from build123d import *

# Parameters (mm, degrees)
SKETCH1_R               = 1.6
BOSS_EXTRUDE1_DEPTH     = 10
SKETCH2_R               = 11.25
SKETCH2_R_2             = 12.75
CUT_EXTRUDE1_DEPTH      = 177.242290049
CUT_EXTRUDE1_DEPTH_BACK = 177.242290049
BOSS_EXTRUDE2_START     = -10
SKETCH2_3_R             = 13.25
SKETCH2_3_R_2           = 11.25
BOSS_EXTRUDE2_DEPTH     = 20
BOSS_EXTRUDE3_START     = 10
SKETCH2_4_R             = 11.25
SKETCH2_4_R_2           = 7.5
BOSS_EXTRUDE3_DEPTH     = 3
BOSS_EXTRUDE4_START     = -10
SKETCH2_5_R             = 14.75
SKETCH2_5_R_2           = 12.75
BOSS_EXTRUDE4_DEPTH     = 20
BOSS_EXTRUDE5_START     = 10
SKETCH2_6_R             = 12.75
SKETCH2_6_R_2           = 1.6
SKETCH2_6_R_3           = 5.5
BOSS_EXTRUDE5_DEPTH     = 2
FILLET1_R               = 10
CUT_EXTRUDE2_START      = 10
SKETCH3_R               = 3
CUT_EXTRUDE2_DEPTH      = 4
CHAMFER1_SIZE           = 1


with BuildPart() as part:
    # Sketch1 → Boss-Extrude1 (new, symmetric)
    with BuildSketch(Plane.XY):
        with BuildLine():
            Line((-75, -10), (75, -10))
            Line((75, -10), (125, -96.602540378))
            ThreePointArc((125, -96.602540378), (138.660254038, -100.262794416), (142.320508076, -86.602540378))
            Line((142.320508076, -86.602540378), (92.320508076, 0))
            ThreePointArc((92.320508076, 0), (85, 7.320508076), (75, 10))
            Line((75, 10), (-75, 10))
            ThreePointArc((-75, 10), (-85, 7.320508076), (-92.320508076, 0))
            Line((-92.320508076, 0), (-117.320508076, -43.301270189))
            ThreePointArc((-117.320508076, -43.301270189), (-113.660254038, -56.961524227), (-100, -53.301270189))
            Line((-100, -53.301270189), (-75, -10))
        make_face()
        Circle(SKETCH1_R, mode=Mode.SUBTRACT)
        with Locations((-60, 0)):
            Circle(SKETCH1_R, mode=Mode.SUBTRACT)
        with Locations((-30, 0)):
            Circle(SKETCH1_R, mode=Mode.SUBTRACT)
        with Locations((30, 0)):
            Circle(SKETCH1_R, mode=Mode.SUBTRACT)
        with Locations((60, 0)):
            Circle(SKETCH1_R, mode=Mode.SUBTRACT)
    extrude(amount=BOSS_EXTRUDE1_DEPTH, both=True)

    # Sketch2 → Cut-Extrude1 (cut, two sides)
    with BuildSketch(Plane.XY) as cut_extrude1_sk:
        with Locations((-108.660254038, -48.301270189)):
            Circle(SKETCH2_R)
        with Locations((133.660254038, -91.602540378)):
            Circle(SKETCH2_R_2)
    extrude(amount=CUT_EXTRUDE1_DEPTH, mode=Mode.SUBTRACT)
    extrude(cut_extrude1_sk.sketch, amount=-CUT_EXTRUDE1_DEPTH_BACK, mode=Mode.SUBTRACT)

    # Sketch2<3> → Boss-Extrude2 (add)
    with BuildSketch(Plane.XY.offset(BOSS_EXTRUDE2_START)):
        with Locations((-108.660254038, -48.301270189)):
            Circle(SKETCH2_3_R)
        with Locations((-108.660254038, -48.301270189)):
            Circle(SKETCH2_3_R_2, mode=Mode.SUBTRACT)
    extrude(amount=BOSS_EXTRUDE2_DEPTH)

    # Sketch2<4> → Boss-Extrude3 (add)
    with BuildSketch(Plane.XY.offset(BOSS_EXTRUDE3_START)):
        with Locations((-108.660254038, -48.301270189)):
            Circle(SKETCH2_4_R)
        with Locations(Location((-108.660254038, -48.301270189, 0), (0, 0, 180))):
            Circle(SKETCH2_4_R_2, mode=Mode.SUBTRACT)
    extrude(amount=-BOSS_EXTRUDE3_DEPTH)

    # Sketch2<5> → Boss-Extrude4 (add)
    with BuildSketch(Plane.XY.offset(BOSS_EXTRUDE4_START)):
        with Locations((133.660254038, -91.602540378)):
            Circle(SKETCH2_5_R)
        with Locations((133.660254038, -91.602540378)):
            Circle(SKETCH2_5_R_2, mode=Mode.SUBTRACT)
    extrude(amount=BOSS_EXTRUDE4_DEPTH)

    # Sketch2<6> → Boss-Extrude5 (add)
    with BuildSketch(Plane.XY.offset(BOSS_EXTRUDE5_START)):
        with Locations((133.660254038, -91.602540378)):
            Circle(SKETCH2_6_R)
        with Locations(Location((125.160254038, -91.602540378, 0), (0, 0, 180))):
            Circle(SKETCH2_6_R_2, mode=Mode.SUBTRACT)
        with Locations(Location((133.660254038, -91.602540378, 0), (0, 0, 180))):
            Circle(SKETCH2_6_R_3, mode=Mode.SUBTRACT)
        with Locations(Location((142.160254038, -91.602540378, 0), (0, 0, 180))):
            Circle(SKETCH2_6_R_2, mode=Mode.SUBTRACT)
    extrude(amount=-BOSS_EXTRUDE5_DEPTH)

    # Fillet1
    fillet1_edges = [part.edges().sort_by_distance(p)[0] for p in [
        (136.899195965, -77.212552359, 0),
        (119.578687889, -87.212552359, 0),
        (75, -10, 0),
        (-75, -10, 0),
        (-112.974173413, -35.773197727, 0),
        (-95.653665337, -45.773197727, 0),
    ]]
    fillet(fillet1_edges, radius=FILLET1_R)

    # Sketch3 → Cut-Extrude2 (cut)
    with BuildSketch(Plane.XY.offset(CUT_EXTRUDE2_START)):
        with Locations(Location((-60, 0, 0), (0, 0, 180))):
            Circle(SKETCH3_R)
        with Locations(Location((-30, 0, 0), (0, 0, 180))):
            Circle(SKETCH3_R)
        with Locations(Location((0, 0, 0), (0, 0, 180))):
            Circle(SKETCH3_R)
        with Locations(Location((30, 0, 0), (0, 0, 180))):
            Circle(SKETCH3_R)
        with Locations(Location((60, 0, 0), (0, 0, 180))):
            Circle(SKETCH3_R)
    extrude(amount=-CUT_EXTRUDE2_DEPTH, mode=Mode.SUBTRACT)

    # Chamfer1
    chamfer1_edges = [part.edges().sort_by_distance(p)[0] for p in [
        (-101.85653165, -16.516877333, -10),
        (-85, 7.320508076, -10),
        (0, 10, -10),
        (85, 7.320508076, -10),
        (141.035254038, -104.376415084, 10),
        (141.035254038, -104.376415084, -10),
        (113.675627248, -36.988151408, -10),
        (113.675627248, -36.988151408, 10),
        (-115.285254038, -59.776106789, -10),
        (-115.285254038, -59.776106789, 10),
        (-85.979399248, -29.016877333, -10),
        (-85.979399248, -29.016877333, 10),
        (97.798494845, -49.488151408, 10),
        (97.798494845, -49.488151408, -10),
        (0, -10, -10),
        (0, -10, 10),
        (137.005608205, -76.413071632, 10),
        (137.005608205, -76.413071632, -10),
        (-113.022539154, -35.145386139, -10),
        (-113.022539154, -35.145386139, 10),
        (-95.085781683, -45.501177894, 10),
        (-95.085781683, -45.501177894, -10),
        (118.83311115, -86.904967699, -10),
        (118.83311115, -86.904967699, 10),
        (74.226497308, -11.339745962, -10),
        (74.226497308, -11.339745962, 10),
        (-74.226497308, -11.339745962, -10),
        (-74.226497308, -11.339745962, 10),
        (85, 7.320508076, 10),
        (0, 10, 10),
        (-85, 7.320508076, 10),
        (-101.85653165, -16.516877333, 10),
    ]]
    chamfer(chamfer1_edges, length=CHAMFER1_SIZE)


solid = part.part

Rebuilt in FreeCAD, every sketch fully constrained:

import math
import FreeCAD as App
import Part
import Sketcher

V = App.Vector
Q = App.Units.Quantity


def edges_at(feature, points):
    """Names of the edges that pass closest to the given points."""
    edges = feature.Shape.Edges
    near = lambda p: min(range(len(edges)), key=lambda i: edges[i].distToShape(Part.Vertex(*p))[0])
    return sorted({f"Edge{near(p) + 1}" for p in points})

doc = App.newDocument("Part")
params = doc.addObject("Spreadsheet::Sheet", "Params")
for row, (alias, value) in enumerate([
    ("sketch1_radius", "10 mm"),
    ("sketch1_diameter", "3.2 mm"),
    ("sketch1_width", "150 mm"),
    ("sketch1_length", "100 mm"),
    ("sketch1_length2", "50 mm"),
    ("pad1_length", "20 mm"),
    ("sketch2_diameter", "22.5 mm"),
    ("sketch2_diameter2", "25.5 mm"),
    ("sketch3_diameter", "26.5 mm"),
    ("sketch3_diameter2", "22.5 mm"),
    ("pad2_length", "20 mm"),
    ("sketch4_diameter", "15 mm"),
    ("sketch4_diameter2", "22.5 mm"),
    ("pad3_length", "3 mm"),
    ("sketch5_diameter", "29.5 mm"),
    ("sketch5_diameter2", "25.5 mm"),
    ("pad4_length", "20 mm"),
    ("sketch6_diameter", "11 mm"),
    ("sketch6_diameter2", "25.5 mm"),
    ("sketch6_diameter3", "3.2 mm"),
    ("pad5_length", "2 mm"),
    ("fillet_radius", "10 mm"),
    ("sketch7_diameter", "6 mm"),
    ("pocket2_length", "4 mm"),
    ("chamfer_size", "1 mm"),
], start=1):
    params.set(f"A{row}", alias)
    params.set(f"B{row}", "=" + value)
    params.setAlias(f"B{row}", alias)

body = doc.addObject("PartDesign::Body", "Body")

# Sketch on XY plane
sketch1 = doc.addObject("Sketcher::SketchObject", "Sketch")
body.addObject(sketch1)
sketch1.AttachmentSupport = (doc.XY_Plane, [""])
sketch1.MapMode = "FlatFace"
sketch1.addGeometry(Part.LineSegment(V(-75, -10, 0), V(75, -10, 0)), False)
sketch1.addGeometry(Part.LineSegment(V(75, -10, 0), V(125, -96.6, 0)), False)
sketch1.addGeometry(Part.ArcOfCircle(Part.Circle(V(133.7, -91.6, 0), V(0, 0, 1), 10), math.radians(-150), math.radians(30)), False)
sketch1.addGeometry(Part.LineSegment(V(142.3, -86.6, 0), V(92.3, 0, 0)), False)
sketch1.addGeometry(Part.ArcOfCircle(Part.Circle(V(75, -10, 0), V(0, 0, 1), 20), math.radians(30), math.radians(90)), False)
sketch1.addGeometry(Part.LineSegment(V(75, 10, 0), V(-75, 10, 0)), False)
sketch1.addGeometry(Part.ArcOfCircle(Part.Circle(V(-75, -10, 0), V(0, 0, 1), 20), math.radians(90), math.radians(150)), False)
sketch1.addGeometry(Part.LineSegment(V(-92.3, 0, 0), V(-117.3, -43.3, 0)), False)
sketch1.addGeometry(Part.ArcOfCircle(Part.Circle(V(-108.7, -48.3, 0), V(0, 0, 1), 10), math.radians(150), math.radians(330)), False)
sketch1.addGeometry(Part.LineSegment(V(-100, -53.3, 0), V(-75, -10, 0)), False)
sketch1.addGeometry(Part.Circle(V(-60, 0, 0), V(0, 0, 1), 1.6), False)
sketch1.addGeometry(Part.Circle(V(-30, 0, 0), V(0, 0, 1), 1.6), False)
sketch1.addGeometry(Part.Circle(V(0, 0, 0), V(0, 0, 1), 1.6), False)
sketch1.addGeometry(Part.Circle(V(30, 0, 0), V(0, 0, 1), 1.6), False)
sketch1.addGeometry(Part.Circle(V(60, 0, 0), V(0, 0, 1), 1.6), False)
sketch1.addConstraint(Sketcher.Constraint("Coincident", 0, 2, 1, 1))
sketch1.addConstraint(Sketcher.Constraint("Tangent", 1, 2, 2, 1))
sketch1.addConstraint(Sketcher.Constraint("Tangent", 2, 2, 3, 1))
sketch1.addConstraint(Sketcher.Constraint("Tangent", 3, 2, 4, 1))
sketch1.addConstraint(Sketcher.Constraint("Tangent", 4, 2, 5, 1))
sketch1.addConstraint(Sketcher.Constraint("Tangent", 5, 2, 6, 1))
sketch1.addConstraint(Sketcher.Constraint("Tangent", 6, 2, 7, 1))
sketch1.addConstraint(Sketcher.Constraint("Tangent", 7, 2, 8, 1))
sketch1.addConstraint(Sketcher.Constraint("Tangent", 8, 2, 9, 1))
sketch1.addConstraint(Sketcher.Constraint("Coincident", 9, 2, 0, 1))
sketch1.addConstraint(Sketcher.Constraint("Horizontal", 0))
sketch1.addConstraint(Sketcher.Constraint("Horizontal", 5))
sketch1.addConstraint(Sketcher.Constraint("Coincident", 12, 3, -1, 1))
sketch1.addConstraint(Sketcher.Constraint("Coincident", 0, 2, 4, 3))
sketch1.addConstraint(Sketcher.Constraint("Coincident", 9, 2, 6, 3))
sketch1.addConstraint(Sketcher.Constraint("Equal", 2, 8))
sketch1.addConstraint(Sketcher.Constraint("Equal", 10, 11))
sketch1.addConstraint(Sketcher.Constraint("Equal", 11, 12))
sketch1.addConstraint(Sketcher.Constraint("Equal", 12, 13))
sketch1.addConstraint(Sketcher.Constraint("Equal", 13, 14))
sketch1.addConstraint(Sketcher.Constraint("Symmetric", 11, 3, 13, 3, -1, 1))
sketch1.addConstraint(Sketcher.Constraint("Symmetric", 10, 3, 14, 3, -1, 1))
sketch1.addConstraint(Sketcher.Constraint("Symmetric", 0, 2, 5, 2, -1, 1))
sketch1.addConstraint(Sketcher.Constraint("Symmetric", 3, 2, 6, 2, -1, 1))
sketch1.addConstraint(Sketcher.Constraint("PointOnObject", 10, 3, -1))
sketch1.addConstraint(Sketcher.Constraint("PointOnObject", 11, 3, -1))
sketch1.addConstraint(Sketcher.Constraint("Parallel", 1, 3))
sketch1.addConstraint(Sketcher.Constraint("Radius", 2, Q("10 mm")))
sketch1.addConstraint(Sketcher.Constraint("Diameter", 10, Q("3.2 mm")))
sketch1.addConstraint(Sketcher.Constraint("DistanceX", 0, 1, 0, 2, Q("150 mm")))
sketch1.addConstraint(Sketcher.Constraint("Distance", 1, Q("100 mm")))
sketch1.addConstraint(Sketcher.Constraint("Distance", 7, Q("50 mm")))
sketch1.addConstraint(Sketcher.Constraint("DistanceX", 10, 3, -1, 1, Q("60 mm")))
sketch1.addConstraint(Sketcher.Constraint("DistanceX", 11, 3, -1, 1, Q("30 mm")))
sketch1.setExpression("Constraints[27]", "Params.sketch1_radius")
sketch1.setExpression("Constraints[28]", "Params.sketch1_diameter")
sketch1.setExpression("Constraints[29]", "Params.sketch1_width")
sketch1.setExpression("Constraints[30]", "Params.sketch1_length")
sketch1.setExpression("Constraints[31]", "Params.sketch1_length2")
pad1 = doc.addObject("PartDesign::Pad", "Pad")
body.addObject(pad1)
pad1.Profile = sketch1
pad1.setExpression("Length", "Params.pad1_length")
pad1.Midplane = True

# Sketch on XY plane
sketch2 = doc.addObject("Sketcher::SketchObject", "Sketch001")
body.addObject(sketch2)
sketch2.AttachmentSupport = (doc.XY_Plane, [""])
sketch2.MapMode = "FlatFace"
sketch2.addGeometry(Part.Circle(V(-109, -48, 0), V(0, 0, 1), 11), False)
sketch2.addGeometry(Part.Circle(V(134, -92, 0), V(0, 0, 1), 13), False)
sketch2.addConstraint(Sketcher.Constraint("Diameter", 0, Q("22.5 mm")))
sketch2.addConstraint(Sketcher.Constraint("Diameter", 1, Q("25.5 mm")))
sketch2.addConstraint(Sketcher.Constraint("DistanceY", 0, 3, -1, 1, Q("48.30127 mm")))
sketch2.addConstraint(Sketcher.Constraint("DistanceY", 1, 3, -1, 1, Q("91.60254 mm")))
sketch2.addConstraint(Sketcher.Constraint("DistanceX", 0, 3, 1, 3, Q("242.320508 mm")))
sketch2.addConstraint(Sketcher.Constraint("DistanceX", 0, 3, -1, 1, Q("108.660254 mm")))
sketch2.setExpression("Constraints[0]", "Params.sketch2_diameter")
sketch2.setExpression("Constraints[1]", "Params.sketch2_diameter2")
pocket1 = doc.addObject("PartDesign::Pocket", "Pocket")
body.addObject(pocket1)
pocket1.Profile = sketch2
pocket1.Type = "ThroughAll"
pocket1.Midplane = True

# Sketch on XY plane
sketch3 = doc.addObject("Sketcher::SketchObject", "Sketch002")
body.addObject(sketch3)
sketch3.AttachmentSupport = (doc.XY_Plane, [""])
sketch3.MapMode = "FlatFace"
sketch3.AttachmentOffset = App.Placement(V(0, 0, -10), App.Rotation())
sketch3.addGeometry(Part.Circle(V(-109, -48, 0), V(0, 0, 1), 13), False)
sketch3.addGeometry(Part.Circle(V(-109, -48, 0), V(0, 0, 1), 11), False)
sketch3.addConstraint(Sketcher.Constraint("Coincident", 1, 3, 0, 3))
sketch3.addConstraint(Sketcher.Constraint("Diameter", 0, Q("26.5 mm")))
sketch3.addConstraint(Sketcher.Constraint("Diameter", 1, Q("22.5 mm")))
sketch3.addConstraint(Sketcher.Constraint("DistanceY", 0, 3, -1, 1, Q("48.30127 mm")))
sketch3.addConstraint(Sketcher.Constraint("DistanceX", 0, 3, -1, 1, Q("108.660254 mm")))
sketch3.setExpression("Constraints[1]", "Params.sketch3_diameter")
sketch3.setExpression("Constraints[2]", "Params.sketch3_diameter2")
pad2 = doc.addObject("PartDesign::Pad", "Pad001")
body.addObject(pad2)
pad2.Profile = sketch3
pad2.setExpression("Length", "Params.pad2_length")

# Sketch on XY plane
sketch4 = doc.addObject("Sketcher::SketchObject", "Sketch003")
body.addObject(sketch4)
sketch4.AttachmentSupport = (doc.XY_Plane, [""])
sketch4.MapMode = "FlatFace"
sketch4.AttachmentOffset = App.Placement(V(0, 0, 10), App.Rotation())
sketch4.addGeometry(Part.Circle(V(-109, -48, 0), V(0, 0, 1), 11), False)
sketch4.addGeometry(Part.Circle(V(-109, -48, 0), V(0, 0, 1), 8), False)
sketch4.addConstraint(Sketcher.Constraint("Coincident", 1, 3, 0, 3))
sketch4.addConstraint(Sketcher.Constraint("Diameter", 1, Q("15 mm")))
sketch4.addConstraint(Sketcher.Constraint("Diameter", 0, Q("22.5 mm")))
sketch4.addConstraint(Sketcher.Constraint("DistanceY", 0, 3, -1, 1, Q("48.30127 mm")))
sketch4.addConstraint(Sketcher.Constraint("DistanceX", 0, 3, -1, 1, Q("108.660254 mm")))
sketch4.setExpression("Constraints[1]", "Params.sketch4_diameter")
sketch4.setExpression("Constraints[2]", "Params.sketch4_diameter2")
pad3 = doc.addObject("PartDesign::Pad", "Pad002")
body.addObject(pad3)
pad3.Profile = sketch4
pad3.setExpression("Length", "Params.pad3_length")
pad3.Reversed = True

# Sketch on XY plane
sketch5 = doc.addObject("Sketcher::SketchObject", "Sketch004")
body.addObject(sketch5)
sketch5.AttachmentSupport = (doc.XY_Plane, [""])
sketch5.MapMode = "FlatFace"
sketch5.AttachmentOffset = App.Placement(V(0, 0, -10), App.Rotation())
sketch5.addGeometry(Part.Circle(V(134, -92, 0), V(0, 0, 1), 15), False)
sketch5.addGeometry(Part.Circle(V(134, -92, 0), V(0, 0, 1), 13), False)
sketch5.addConstraint(Sketcher.Constraint("Coincident", 1, 3, 0, 3))
sketch5.addConstraint(Sketcher.Constraint("Diameter", 0, Q("29.5 mm")))
sketch5.addConstraint(Sketcher.Constraint("Diameter", 1, Q("25.5 mm")))
sketch5.addConstraint(Sketcher.Constraint("DistanceY", 0, 3, -1, 1, Q("91.60254 mm")))
sketch5.addConstraint(Sketcher.Constraint("DistanceX", -1, 1, 0, 3, Q("133.660254 mm")))
sketch5.setExpression("Constraints[1]", "Params.sketch5_diameter")
sketch5.setExpression("Constraints[2]", "Params.sketch5_diameter2")
pad4 = doc.addObject("PartDesign::Pad", "Pad003")
body.addObject(pad4)
pad4.Profile = sketch5
pad4.setExpression("Length", "Params.pad4_length")

# Sketch on XY plane
sketch6 = doc.addObject("Sketcher::SketchObject", "Sketch005")
body.addObject(sketch6)
sketch6.AttachmentSupport = (doc.XY_Plane, [""])
sketch6.MapMode = "FlatFace"
sketch6.AttachmentOffset = App.Placement(V(0, 0, 10), App.Rotation())
sketch6.addGeometry(Part.Circle(V(133.7, -91.6, 0), V(0, 0, 1), 12.8), False)
sketch6.addGeometry(Part.Circle(V(125.2, -91.6, 0), V(0, 0, 1), 1.6), False)
sketch6.addGeometry(Part.Circle(V(133.7, -91.6, 0), V(0, 0, 1), 5.5), False)
sketch6.addGeometry(Part.Circle(V(142.2, -91.6, 0), V(0, 0, 1), 1.6), False)
sketch6.addConstraint(Sketcher.Constraint("Coincident", 2, 3, 0, 3))
sketch6.addConstraint(Sketcher.Constraint("Equal", 1, 3))
sketch6.addConstraint(Sketcher.Constraint("Horizontal", 0, 3, 1, 3))
sketch6.addConstraint(Sketcher.Constraint("Horizontal", 2, 3, 3, 3))
sketch6.addConstraint(Sketcher.Constraint("Diameter", 2, Q("11 mm")))
sketch6.addConstraint(Sketcher.Constraint("Diameter", 0, Q("25.5 mm")))
sketch6.addConstraint(Sketcher.Constraint("Diameter", 1, Q("3.2 mm")))
sketch6.addConstraint(Sketcher.Constraint("DistanceX", 1, 3, 3, 3, Q("17 mm")))
sketch6.addConstraint(Sketcher.Constraint("DistanceX", 1, 3, 0, 3, Q("8.5 mm")))
sketch6.addConstraint(Sketcher.Constraint("DistanceY", 0, 3, -1, 1, Q("91.60254 mm")))
sketch6.addConstraint(Sketcher.Constraint("DistanceX", -1, 1, 0, 3, Q("133.660254 mm")))
sketch6.setExpression("Constraints[4]", "Params.sketch6_diameter")
sketch6.setExpression("Constraints[5]", "Params.sketch6_diameter2")
sketch6.setExpression("Constraints[6]", "Params.sketch6_diameter3")
pad5 = doc.addObject("PartDesign::Pad", "Pad004")
body.addObject(pad5)
pad5.Profile = sketch6
pad5.setExpression("Length", "Params.pad5_length")
pad5.Reversed = True
doc.recompute()

fillet = doc.addObject("PartDesign::Fillet", "Fillet")
body.addObject(fillet)
fillet.Base = (pad5, edges_at(pad5, [
    (136.899, -77.213, 0),
    (119.579, -87.213, 0),
    (75, -10, 0),
    (-75, -10, 0),
    (-112.974, -35.773, 0),
    (-95.654, -45.773, 0),
]))
fillet.setExpression("Radius", "Params.fillet_radius")

# Sketch on XY plane
sketch7 = doc.addObject("Sketcher::SketchObject", "Sketch006")
body.addObject(sketch7)
sketch7.AttachmentSupport = (doc.XY_Plane, [""])
sketch7.MapMode = "FlatFace"
sketch7.AttachmentOffset = App.Placement(V(0, 0, 10), App.Rotation())
sketch7.addGeometry(Part.Circle(V(-60, 0, 0), V(0, 0, 1), 3), False)
sketch7.addGeometry(Part.Circle(V(-30, 0, 0), V(0, 0, 1), 3), False)
sketch7.addGeometry(Part.Circle(V(0, 0, 0), V(0, 0, 1), 3), False)
sketch7.addGeometry(Part.Circle(V(30, 0, 0), V(0, 0, 1), 3), False)
sketch7.addGeometry(Part.Circle(V(60, 0, 0), V(0, 0, 1), 3), False)
sketch7.addConstraint(Sketcher.Constraint("Coincident", 2, 3, -1, 1))
sketch7.addConstraint(Sketcher.Constraint("Equal", 0, 1))
sketch7.addConstraint(Sketcher.Constraint("Equal", 1, 2))
sketch7.addConstraint(Sketcher.Constraint("Equal", 2, 3))
sketch7.addConstraint(Sketcher.Constraint("Equal", 3, 4))
sketch7.addConstraint(Sketcher.Constraint("Symmetric", 1, 3, 3, 3, -1, 1))
sketch7.addConstraint(Sketcher.Constraint("Symmetric", 0, 3, 4, 3, -1, 1))
sketch7.addConstraint(Sketcher.Constraint("PointOnObject", 0, 3, -1))
sketch7.addConstraint(Sketcher.Constraint("PointOnObject", 1, 3, -1))
sketch7.addConstraint(Sketcher.Constraint("Diameter", 0, Q("6 mm")))
sketch7.addConstraint(Sketcher.Constraint("DistanceX", 0, 3, -1, 1, Q("60 mm")))
sketch7.addConstraint(Sketcher.Constraint("DistanceX", 1, 3, -1, 1, Q("30 mm")))
sketch7.setExpression("Constraints[9]", "Params.sketch7_diameter")
pocket2 = doc.addObject("PartDesign::Pocket", "Pocket001")
body.addObject(pocket2)
pocket2.Profile = sketch7
pocket2.setExpression("Length", "Params.pocket2_length")
doc.recompute()

chamfer = doc.addObject("PartDesign::Chamfer", "Chamfer")
body.addObject(chamfer)
chamfer.Base = (pocket2, edges_at(pocket2, [
    (-101.857, -16.517, -10),
    (-85, 7.321, -10),
    (0, 10, -10),
    (85, 7.321, -10),
    (141.035, -104.376, 10),
    (141.035, -104.376, -10),
    (113.676, -36.988, -10),
    (113.676, -36.988, 10),
    (-115.285, -59.776, -10),
    (-115.285, -59.776, 10),
    (-85.979, -29.017, -10),
    (-85.979, -29.017, 10),
    (97.798, -49.488, 10),
    (97.798, -49.488, -10),
    (0, -10, -10),
    (0, -10, 10),
    (137.006, -76.413, 10),
    (137.006, -76.413, -10),
    (-113.023, -35.145, -10),
    (-113.023, -35.145, 10),
    (-95.086, -45.501, 10),
    (-95.086, -45.501, -10),
    (118.833, -86.905, -10),
    (118.833, -86.905, 10),
    (74.226, -11.34, -10),
    (74.226, -11.34, 10),
    (-74.226, -11.34, -10),
    (-74.226, -11.34, 10),
    (85, 7.321, 10),
    (0, 10, 10),
    (-85, 7.321, 10),
    (-101.857, -16.517, 10),
]))
chamfer.setExpression("Size", "Params.chamfer_size")

doc.recompute()
